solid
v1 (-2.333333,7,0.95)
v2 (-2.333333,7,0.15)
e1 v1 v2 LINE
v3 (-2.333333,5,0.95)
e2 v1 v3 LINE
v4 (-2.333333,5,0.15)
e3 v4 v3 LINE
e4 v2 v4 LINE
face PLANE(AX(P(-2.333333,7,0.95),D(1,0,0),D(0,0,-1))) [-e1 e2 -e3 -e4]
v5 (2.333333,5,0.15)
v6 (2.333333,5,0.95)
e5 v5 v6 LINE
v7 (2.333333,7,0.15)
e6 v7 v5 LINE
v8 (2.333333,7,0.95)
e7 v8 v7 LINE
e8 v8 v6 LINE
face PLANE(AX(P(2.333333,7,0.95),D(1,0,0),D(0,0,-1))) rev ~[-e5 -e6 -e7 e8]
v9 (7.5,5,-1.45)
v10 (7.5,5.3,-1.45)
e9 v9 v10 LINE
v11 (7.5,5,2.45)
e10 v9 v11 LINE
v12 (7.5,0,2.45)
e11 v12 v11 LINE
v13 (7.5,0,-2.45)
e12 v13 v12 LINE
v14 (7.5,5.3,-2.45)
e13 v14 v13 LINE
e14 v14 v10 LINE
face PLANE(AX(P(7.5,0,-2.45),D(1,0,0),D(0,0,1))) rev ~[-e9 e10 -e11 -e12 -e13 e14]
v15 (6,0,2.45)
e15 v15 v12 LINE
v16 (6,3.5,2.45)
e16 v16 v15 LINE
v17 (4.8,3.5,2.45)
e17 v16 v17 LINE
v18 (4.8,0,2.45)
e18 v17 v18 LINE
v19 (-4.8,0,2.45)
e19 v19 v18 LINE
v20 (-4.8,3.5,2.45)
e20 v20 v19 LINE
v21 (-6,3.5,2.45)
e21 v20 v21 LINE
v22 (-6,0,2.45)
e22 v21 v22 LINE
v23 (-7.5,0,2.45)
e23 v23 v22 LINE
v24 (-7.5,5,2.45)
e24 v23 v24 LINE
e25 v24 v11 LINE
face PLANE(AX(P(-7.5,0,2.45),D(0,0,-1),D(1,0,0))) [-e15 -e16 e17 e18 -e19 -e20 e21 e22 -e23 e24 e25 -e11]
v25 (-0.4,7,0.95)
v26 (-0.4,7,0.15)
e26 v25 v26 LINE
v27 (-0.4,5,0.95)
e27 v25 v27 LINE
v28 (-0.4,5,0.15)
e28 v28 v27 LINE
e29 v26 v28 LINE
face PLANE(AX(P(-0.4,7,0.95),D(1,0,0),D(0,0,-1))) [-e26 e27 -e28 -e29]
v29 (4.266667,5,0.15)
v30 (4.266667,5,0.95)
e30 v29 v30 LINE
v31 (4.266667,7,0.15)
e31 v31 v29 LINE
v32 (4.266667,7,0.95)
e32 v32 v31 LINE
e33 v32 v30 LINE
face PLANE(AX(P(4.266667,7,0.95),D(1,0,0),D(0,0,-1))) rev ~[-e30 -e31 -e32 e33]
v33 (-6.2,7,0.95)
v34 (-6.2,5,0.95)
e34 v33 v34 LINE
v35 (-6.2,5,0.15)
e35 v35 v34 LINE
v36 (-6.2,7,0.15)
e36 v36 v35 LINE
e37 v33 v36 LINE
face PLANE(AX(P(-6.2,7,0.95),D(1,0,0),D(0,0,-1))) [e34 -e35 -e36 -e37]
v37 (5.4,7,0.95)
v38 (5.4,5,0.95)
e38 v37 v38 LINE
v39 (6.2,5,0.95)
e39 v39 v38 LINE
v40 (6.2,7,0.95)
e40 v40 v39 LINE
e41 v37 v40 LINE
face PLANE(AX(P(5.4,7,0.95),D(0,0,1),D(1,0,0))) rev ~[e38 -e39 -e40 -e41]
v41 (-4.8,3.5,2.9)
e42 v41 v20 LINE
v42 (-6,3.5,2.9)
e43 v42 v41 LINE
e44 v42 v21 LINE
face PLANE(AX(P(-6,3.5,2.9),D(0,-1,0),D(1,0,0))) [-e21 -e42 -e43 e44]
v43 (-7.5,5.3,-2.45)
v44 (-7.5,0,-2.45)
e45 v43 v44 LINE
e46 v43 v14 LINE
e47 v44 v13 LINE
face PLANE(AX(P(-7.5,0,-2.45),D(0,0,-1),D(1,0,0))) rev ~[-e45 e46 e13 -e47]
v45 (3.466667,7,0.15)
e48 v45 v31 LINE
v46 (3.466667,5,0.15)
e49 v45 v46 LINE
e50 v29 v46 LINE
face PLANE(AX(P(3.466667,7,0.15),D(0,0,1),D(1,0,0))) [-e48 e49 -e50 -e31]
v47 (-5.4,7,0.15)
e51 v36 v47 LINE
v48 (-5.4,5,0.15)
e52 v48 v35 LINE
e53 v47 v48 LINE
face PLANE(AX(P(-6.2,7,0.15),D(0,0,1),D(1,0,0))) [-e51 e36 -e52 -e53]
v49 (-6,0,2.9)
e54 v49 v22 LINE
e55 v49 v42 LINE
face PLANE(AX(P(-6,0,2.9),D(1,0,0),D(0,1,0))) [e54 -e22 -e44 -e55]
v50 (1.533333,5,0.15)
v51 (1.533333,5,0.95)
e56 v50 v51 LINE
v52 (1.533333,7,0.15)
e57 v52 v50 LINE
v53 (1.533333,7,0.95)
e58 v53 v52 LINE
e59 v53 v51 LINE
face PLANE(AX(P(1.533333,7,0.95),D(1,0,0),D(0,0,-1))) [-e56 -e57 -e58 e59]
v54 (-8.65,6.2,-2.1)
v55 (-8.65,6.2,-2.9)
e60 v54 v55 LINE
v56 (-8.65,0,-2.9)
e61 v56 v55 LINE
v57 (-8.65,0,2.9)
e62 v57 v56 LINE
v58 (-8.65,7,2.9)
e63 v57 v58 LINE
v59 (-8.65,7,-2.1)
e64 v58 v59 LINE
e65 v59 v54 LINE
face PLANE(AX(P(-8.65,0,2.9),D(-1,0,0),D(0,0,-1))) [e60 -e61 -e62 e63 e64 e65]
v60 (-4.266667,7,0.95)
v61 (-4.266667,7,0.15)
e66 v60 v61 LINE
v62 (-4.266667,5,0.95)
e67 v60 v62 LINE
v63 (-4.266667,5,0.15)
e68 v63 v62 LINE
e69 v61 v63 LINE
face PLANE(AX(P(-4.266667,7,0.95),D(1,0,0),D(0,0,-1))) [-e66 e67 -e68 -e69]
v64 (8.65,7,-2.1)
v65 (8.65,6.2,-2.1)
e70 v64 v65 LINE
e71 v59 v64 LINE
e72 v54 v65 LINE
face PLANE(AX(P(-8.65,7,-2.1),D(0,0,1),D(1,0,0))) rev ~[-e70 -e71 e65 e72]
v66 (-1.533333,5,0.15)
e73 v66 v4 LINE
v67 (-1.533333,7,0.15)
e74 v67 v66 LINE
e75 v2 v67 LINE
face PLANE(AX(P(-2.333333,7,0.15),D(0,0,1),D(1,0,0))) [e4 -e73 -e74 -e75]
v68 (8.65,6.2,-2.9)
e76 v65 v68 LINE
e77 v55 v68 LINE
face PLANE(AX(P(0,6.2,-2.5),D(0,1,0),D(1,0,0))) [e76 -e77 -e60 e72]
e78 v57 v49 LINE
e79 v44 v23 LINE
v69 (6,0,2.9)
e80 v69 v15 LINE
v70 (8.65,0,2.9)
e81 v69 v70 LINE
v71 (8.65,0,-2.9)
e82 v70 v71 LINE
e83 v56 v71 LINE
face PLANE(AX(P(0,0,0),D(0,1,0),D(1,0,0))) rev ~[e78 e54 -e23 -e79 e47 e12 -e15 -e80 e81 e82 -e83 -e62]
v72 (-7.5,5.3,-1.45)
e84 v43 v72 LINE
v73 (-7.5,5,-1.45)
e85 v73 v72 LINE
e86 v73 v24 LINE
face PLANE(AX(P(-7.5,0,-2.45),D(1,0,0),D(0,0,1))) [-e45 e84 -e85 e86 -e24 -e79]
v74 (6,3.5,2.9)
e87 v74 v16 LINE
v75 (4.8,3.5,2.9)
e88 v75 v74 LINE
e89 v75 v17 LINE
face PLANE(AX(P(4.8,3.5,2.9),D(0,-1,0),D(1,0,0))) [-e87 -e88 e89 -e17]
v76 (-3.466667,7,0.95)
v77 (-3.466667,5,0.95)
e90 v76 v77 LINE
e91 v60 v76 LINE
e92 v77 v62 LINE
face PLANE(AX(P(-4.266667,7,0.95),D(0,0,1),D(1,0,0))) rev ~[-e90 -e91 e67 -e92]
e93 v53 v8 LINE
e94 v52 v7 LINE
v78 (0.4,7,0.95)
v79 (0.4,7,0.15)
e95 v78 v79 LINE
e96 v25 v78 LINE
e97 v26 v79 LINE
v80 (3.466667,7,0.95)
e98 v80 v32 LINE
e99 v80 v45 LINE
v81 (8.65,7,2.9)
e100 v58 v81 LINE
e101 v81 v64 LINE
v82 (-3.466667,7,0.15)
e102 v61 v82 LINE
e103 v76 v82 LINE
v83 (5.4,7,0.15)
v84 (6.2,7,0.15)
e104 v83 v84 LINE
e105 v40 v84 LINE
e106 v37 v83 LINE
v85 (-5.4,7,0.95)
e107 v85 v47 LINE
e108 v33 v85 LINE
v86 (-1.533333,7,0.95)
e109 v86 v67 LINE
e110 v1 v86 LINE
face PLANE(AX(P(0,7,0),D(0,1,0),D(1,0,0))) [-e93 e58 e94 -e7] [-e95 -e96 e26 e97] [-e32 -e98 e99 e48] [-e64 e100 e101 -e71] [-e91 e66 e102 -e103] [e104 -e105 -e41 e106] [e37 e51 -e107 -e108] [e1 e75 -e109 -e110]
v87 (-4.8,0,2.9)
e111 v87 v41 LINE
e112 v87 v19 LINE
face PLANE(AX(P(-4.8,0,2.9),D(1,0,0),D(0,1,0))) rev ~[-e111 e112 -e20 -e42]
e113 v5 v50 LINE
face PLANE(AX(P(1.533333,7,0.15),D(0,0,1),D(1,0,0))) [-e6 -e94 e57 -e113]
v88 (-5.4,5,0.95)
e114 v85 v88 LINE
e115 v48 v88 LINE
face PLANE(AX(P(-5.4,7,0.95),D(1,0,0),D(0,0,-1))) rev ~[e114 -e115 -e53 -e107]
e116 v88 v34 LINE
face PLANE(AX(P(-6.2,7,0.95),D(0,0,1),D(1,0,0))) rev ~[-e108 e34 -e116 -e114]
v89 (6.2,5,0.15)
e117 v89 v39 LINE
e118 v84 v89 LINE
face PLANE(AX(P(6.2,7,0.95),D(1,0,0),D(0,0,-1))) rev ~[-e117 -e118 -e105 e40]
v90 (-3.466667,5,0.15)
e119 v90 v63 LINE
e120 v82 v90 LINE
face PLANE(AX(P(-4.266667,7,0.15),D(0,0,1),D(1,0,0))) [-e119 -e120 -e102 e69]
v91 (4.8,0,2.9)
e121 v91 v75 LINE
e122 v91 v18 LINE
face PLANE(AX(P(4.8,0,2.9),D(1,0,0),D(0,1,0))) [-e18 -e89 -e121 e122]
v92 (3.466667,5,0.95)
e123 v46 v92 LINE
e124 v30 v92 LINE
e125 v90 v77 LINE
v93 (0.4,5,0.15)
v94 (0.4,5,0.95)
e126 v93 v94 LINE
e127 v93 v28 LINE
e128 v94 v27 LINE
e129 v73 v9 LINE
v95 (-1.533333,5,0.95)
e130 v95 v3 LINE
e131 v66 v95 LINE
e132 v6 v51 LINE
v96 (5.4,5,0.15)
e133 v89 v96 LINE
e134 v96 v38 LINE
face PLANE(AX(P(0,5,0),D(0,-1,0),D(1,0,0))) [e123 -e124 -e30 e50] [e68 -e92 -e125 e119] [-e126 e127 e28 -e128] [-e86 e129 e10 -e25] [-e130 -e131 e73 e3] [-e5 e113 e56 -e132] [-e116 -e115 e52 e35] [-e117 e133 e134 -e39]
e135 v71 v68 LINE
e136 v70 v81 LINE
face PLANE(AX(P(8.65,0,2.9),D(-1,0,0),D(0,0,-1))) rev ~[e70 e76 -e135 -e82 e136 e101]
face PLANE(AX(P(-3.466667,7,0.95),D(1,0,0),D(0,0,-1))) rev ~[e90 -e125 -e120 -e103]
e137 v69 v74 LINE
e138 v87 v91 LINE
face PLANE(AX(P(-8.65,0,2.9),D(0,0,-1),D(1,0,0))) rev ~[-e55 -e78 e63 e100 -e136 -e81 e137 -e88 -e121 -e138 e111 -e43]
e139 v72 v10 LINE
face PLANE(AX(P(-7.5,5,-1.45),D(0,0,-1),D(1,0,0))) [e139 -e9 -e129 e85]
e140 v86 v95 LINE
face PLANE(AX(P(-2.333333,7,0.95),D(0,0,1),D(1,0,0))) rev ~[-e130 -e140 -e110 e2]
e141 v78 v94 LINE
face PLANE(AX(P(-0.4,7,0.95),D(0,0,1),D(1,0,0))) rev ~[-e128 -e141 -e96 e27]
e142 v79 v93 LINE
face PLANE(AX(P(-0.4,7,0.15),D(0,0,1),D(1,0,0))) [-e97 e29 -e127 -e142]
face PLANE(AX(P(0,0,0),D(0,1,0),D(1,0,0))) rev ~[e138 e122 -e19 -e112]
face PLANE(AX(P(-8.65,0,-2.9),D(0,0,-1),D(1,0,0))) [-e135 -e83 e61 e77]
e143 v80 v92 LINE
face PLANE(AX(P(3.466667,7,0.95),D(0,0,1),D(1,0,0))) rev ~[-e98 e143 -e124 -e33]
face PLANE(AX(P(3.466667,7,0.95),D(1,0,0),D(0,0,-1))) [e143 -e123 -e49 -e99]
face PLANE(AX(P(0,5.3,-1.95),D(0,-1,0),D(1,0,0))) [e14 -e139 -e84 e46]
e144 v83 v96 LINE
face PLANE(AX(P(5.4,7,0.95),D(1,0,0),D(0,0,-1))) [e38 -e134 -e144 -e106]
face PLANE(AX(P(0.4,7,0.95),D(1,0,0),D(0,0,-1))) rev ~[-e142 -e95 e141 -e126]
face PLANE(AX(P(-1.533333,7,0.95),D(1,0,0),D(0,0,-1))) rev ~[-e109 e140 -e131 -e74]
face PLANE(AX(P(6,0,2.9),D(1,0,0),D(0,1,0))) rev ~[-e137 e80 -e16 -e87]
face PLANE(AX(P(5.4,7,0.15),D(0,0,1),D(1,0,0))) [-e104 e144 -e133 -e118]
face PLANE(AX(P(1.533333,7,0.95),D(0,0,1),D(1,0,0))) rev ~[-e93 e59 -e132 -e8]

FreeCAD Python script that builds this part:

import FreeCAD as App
import Part
import Sketcher
Q = App.Units.Quantity


def add_polygon(sketch, points):
    """Adds a closed chain of lines whose ends are joined by coincident constraints."""
    first, n = sketch.GeometryCount, len(points)
    for a, b in zip(points, points[1:] + points[:1]):
        sketch.addGeometry(Part.LineSegment(App.Vector(*a, 0), App.Vector(*b, 0)), False)
    for i in range(n):
        sketch.addConstraint(Sketcher.Constraint("Coincident", first + i, 2, first + (i + 1) % n, 1))

doc = App.newDocument("Part")
body = doc.addObject("PartDesign::Body", "Body")

sketch1 = doc.addObject("Sketcher::SketchObject", "Sketch")
body.addObject(sketch1)
sketch1.AttachmentSupport = (doc.XZ_Plane, [""])
sketch1.MapMode = "FlatFace"
add_polygon(sketch1, [(-8.65, -2.9), (-8.65, 2.9), (8.65, 2.9), (8.65, -2.9)])
sketch1.addConstraint([
    Sketcher.Constraint("Vertical", 0),
    Sketcher.Constraint("Horizontal", 1),
    Sketcher.Constraint("Vertical", 2),
    Sketcher.Constraint("Horizontal", 3),
    Sketcher.Constraint("Symmetric", 0, 2, 2, 2, -1, 1),
    Sketcher.Constraint("DistanceX", 1, 1, 1, 2, Q("17.3 mm")),
    Sketcher.Constraint("DistanceY", 0, 1, 0, 2, Q("5.8 mm")),
])
pad1 = doc.addObject("PartDesign::Pad", "Pad")
body.addObject(pad1)
pad1.Profile = sketch1
pad1.Length = 7
pad1.Reversed = True

sketch2 = doc.addObject("Sketcher::SketchObject", "Sketch001")
body.addObject(sketch2)
sketch2.AttachmentSupport = (doc.XZ_Plane, [""])
sketch2.MapMode = "FlatFace"
add_polygon(sketch2, [(-7.5, 2.45), (-7.5, -2.45), (7.5, -2.45), (7.5, 2.45)])
sketch2.addConstraint([
    Sketcher.Constraint("Vertical", 0),
    Sketcher.Constraint("Horizontal", 1),
    Sketcher.Constraint("Vertical", 2),
    Sketcher.Constraint("Horizontal", 3),
    Sketcher.Constraint("Symmetric", 0, 2, 2, 2, -1, 1),
    Sketcher.Constraint("DistanceX", 1, 1, 1, 2, Q("15 mm")),
    Sketcher.Constraint("DistanceY", 0, 2, 0, 1, Q("4.9 mm")),
])
pocket1 = doc.addObject("PartDesign::Pocket", "Pocket")
body.addObject(pocket1)
pocket1.Profile = sketch2
pocket1.Length = 5

sketch3 = doc.addObject("Sketcher::SketchObject", "Sketch002")
body.addObject(sketch3)
sketch3.AttachmentSupport = (doc.XY_Plane, [""])
sketch3.MapMode = "FlatFace"
sketch3.AttachmentOffset = App.Placement(App.Vector(0, 0, 2.9), App.Rotation())
add_polygon(sketch3, [(-6, 3.5), (-6, 0), (-4.8, 0), (-4.8, 3.5)])
add_polygon(sketch3, [(4.8, 3.5), (4.8, 0), (6, 0), (6, 3.5)])
sketch3.addConstraint([
    Sketcher.Constraint("Vertical", 0),
    Sketcher.Constraint("Horizontal", 1),
    Sketcher.Constraint("Vertical", 2),
    Sketcher.Constraint("Horizontal", 3),
    Sketcher.Constraint("Vertical", 4),
    Sketcher.Constraint("Horizontal", 5),
    Sketcher.Constraint("Vertical", 6),
    Sketcher.Constraint("Horizontal", 7),
    Sketcher.Constraint("Symmetric", 1, 2, 4, 2, -1, 1),
    Sketcher.Constraint("Symmetric", 0, 2, 5, 2, -2),
    Sketcher.Constraint("Horizontal", 3, 2, 6, 2),
    Sketcher.Constraint("DistanceX", 1, 1, 1, 2, Q("1.2 mm")),
    Sketcher.Constraint("DistanceY", 0, 2, 0, 1, Q("3.5 mm")),
    Sketcher.Constraint("DistanceX", 0, 2, -1, 1, Q("6 mm")),
])
pocket2 = doc.addObject("PartDesign::Pocket", "Pocket001")
body.addObject(pocket2)
pocket2.Profile = sketch3
pocket2.Length = 4

sketch4 = doc.addObject("Sketcher::SketchObject", "Sketch003")
body.addObject(sketch4)
sketch4.AttachmentSupport = (doc.XZ_Plane, [""])
sketch4.MapMode = "FlatFace"
sketch4.AttachmentOffset = App.Placement(App.Vector(0, 0, -7), App.Rotation())
add_polygon(sketch4, [(-8.65, -2.9), (-8.65, -2.1), (8.65, -2.1), (8.65, -2.9)])
sketch4.addConstraint([
    Sketcher.Constraint("Vertical", 0),
    Sketcher.Constraint("Horizontal", 1),
    Sketcher.Constraint("Vertical", 2),
    Sketcher.Constraint("Horizontal", 3),
    Sketcher.Constraint("DistanceX", 1, 1, 1, 2, Q("17.3 mm")),
    Sketcher.Constraint("DistanceY", 0, 1, 0, 2, Q("0.8 mm")),
    Sketcher.Constraint("DistanceY", 0, 2, -1, 1, Q("2.1 mm")),
    Sketcher.Constraint("DistanceX", 0, 2, -1, 1, Q("8.65 mm")),
])
pocket3 = doc.addObject("PartDesign::Pocket", "Pocket002")
body.addObject(pocket3)
pocket3.Profile = sketch4
pocket3.Length = 0.8
pocket3.Reversed = True

sketch5 = doc.addObject("Sketcher::SketchObject", "Sketch004")
body.addObject(sketch5)
sketch5.AttachmentSupport = (doc.XZ_Plane, [""])
sketch5.MapMode = "FlatFace"
sketch5.AttachmentOffset = App.Placement(App.Vector(0, 0, -7), App.Rotation())
add_polygon(sketch5, [(5.4, 0.15), (5.4, 0.95), (6.2, 0.95), (6.2, 0.15)])
add_polygon(sketch5, [(3.466667, 0.15), (3.466667, 0.95), (4.266667, 0.95), (4.266667, 0.15)])
add_polygon(sketch5, [(1.533333, 0.15), (1.533333, 0.95), (2.333333, 0.95), (2.333333, 0.15)])
add_polygon(sketch5, [(-0.4, 0.15), (-0.4, 0.95), (0.4, 0.95), (0.4, 0.15)])
add_polygon(sketch5, [(-2.333333, 0.15), (-2.333333, 0.95), (-1.533333, 0.95), (-1.533333, 0.15)])
add_polygon(sketch5, [(-4.266667, 0.15), (-4.266667, 0.95), (-3.466667, 0.95), (-3.466667, 0.15)])
add_polygon(sketch5, [(-6.2, 0.15), (-6.2, 0.95), (-5.4, 0.95), (-5.4, 0.15)])
sketch5.addConstraint([
    Sketcher.Constraint("Vertical", 0),
    Sketcher.Constraint("Horizontal", 1),
    Sketcher.Constraint("Vertical", 2),
    Sketcher.Constraint("Horizontal", 3),
    Sketcher.Constraint("Vertical", 4),
    Sketcher.Constraint("Horizontal", 5),
    Sketcher.Constraint("Vertical", 6),
    Sketcher.Constraint("Horizontal", 7),
    Sketcher.Constraint("Vertical", 8),
    Sketcher.Constraint("Horizontal", 9),
    Sketcher.Constraint("Vertical", 10),
    Sketcher.Constraint("Horizontal", 11),
    Sketcher.Constraint("Vertical", 12),
    Sketcher.Constraint("Horizontal", 13),
    Sketcher.Constraint("Vertical", 14),
    Sketcher.Constraint("Horizontal", 15),
    Sketcher.Constraint("Vertical", 16),
    Sketcher.Constraint("Horizontal", 17),
    Sketcher.Constraint("Vertical", 18),
    Sketcher.Constraint("Horizontal", 19),
    Sketcher.Constraint("Vertical", 20),
    Sketcher.Constraint("Horizontal", 21),
    Sketcher.Constraint("Vertical", 22),
    Sketcher.Constraint("Horizontal", 23),
    Sketcher.Constraint("Vertical", 24),
    Sketcher.Constraint("Horizontal", 25),
    Sketcher.Constraint("Vertical", 26),
    Sketcher.Constraint("Horizontal", 27),
    Sketcher.Constraint("Symmetric", 9, 2, 16, 2, -2),
    Sketcher.Constraint("Symmetric", 11, 2, 18, 2, -2),
    Sketcher.Constraint("Symmetric", 5, 2, 20, 2, -2),
    Sketcher.Constraint("Symmetric", 7, 2, 22, 2, -2),
    Sketcher.Constraint("Symmetric", 1, 2, 24, 2, -2),
    Sketcher.Constraint("Symmetric", 3, 2, 26, 2, -2),
    Sketcher.Constraint("Horizontal", 1, 2, 4, 2),
    Sketcher.Constraint("Horizontal", 3, 2, 6, 2),
    Sketcher.Constraint("Horizontal", 5, 2, 8, 2),
    Sketcher.Constraint("Horizontal", 7, 2, 10, 2),
    Sketcher.Constraint("Horizontal", 9, 2, 12, 2),
    Sketcher.Constraint("Horizontal", 11, 2, 14, 2),
    Sketcher.Constraint("Equal", 3, 5),
    Sketcher.Constraint("Equal", 7, 9),
    Sketcher.Constraint("Equal", 11, 13),
    Sketcher.Constraint("Equal", 27, 0),
    Sketcher.Constraint("DistanceX", 1, 1, 1, 2, Q("0.8 mm")),
    Sketcher.Constraint("DistanceX", -1, 1, 0, 2, Q("5.4 mm")),
    Sketcher.Constraint("DistanceX", 12, 2, -1, 1, Q("0.4 mm")),
    Sketcher.Constraint("DistanceY", -1, 1, 0, 2, Q("0.95 mm")),
    Sketcher.Constraint("DistanceX", -1, 1, 4, 2, Q("3.466667 mm")),
    Sketcher.Constraint("DistanceX", -1, 1, 8, 2, Q("1.533333 mm")),
])
pocket4 = doc.addObject("PartDesign::Pocket", "Pocket003")
body.addObject(pocket4)
pocket4.Profile = sketch5
pocket4.Length = 10
pocket4.Reversed = True

sketch6 = doc.addObject("Sketcher::SketchObject", "Sketch005")
body.addObject(sketch6)
sketch6.AttachmentSupport = (doc.XZ_Plane, [""])
sketch6.MapMode = "FlatFace"
sketch6.AttachmentOffset = App.Placement(App.Vector(0, 0, -5), App.Rotation())
add_polygon(sketch6, [(-7.5, -1.45), (-7.5, -2.45), (7.5, -2.45), (7.5, -1.45)])
sketch6.addConstraint([
    Sketcher.Constraint("Vertical", 0),
    Sketcher.Constraint("Horizontal", 1),
    Sketcher.Constraint("Vertical", 2),
    Sketcher.Constraint("Horizontal", 3),
    Sketcher.Constraint("DistanceX", 1, 1, 1, 2, Q("15 mm")),
    Sketcher.Constraint("DistanceY", 0, 2, 0, 1, Q("1 mm")),
    Sketcher.Constraint("DistanceX", 0, 2, -1, 1, Q("7.5 mm")),
    Sketcher.Constraint("DistanceY", 0, 2, -1, 1, Q("2.45 mm")),
])
pocket5 = doc.addObject("PartDesign::Pocket", "Pocket004")
body.addObject(pocket5)
pocket5.Profile = sketch6
pocket5.Length = 0.3

doc.recompute()
